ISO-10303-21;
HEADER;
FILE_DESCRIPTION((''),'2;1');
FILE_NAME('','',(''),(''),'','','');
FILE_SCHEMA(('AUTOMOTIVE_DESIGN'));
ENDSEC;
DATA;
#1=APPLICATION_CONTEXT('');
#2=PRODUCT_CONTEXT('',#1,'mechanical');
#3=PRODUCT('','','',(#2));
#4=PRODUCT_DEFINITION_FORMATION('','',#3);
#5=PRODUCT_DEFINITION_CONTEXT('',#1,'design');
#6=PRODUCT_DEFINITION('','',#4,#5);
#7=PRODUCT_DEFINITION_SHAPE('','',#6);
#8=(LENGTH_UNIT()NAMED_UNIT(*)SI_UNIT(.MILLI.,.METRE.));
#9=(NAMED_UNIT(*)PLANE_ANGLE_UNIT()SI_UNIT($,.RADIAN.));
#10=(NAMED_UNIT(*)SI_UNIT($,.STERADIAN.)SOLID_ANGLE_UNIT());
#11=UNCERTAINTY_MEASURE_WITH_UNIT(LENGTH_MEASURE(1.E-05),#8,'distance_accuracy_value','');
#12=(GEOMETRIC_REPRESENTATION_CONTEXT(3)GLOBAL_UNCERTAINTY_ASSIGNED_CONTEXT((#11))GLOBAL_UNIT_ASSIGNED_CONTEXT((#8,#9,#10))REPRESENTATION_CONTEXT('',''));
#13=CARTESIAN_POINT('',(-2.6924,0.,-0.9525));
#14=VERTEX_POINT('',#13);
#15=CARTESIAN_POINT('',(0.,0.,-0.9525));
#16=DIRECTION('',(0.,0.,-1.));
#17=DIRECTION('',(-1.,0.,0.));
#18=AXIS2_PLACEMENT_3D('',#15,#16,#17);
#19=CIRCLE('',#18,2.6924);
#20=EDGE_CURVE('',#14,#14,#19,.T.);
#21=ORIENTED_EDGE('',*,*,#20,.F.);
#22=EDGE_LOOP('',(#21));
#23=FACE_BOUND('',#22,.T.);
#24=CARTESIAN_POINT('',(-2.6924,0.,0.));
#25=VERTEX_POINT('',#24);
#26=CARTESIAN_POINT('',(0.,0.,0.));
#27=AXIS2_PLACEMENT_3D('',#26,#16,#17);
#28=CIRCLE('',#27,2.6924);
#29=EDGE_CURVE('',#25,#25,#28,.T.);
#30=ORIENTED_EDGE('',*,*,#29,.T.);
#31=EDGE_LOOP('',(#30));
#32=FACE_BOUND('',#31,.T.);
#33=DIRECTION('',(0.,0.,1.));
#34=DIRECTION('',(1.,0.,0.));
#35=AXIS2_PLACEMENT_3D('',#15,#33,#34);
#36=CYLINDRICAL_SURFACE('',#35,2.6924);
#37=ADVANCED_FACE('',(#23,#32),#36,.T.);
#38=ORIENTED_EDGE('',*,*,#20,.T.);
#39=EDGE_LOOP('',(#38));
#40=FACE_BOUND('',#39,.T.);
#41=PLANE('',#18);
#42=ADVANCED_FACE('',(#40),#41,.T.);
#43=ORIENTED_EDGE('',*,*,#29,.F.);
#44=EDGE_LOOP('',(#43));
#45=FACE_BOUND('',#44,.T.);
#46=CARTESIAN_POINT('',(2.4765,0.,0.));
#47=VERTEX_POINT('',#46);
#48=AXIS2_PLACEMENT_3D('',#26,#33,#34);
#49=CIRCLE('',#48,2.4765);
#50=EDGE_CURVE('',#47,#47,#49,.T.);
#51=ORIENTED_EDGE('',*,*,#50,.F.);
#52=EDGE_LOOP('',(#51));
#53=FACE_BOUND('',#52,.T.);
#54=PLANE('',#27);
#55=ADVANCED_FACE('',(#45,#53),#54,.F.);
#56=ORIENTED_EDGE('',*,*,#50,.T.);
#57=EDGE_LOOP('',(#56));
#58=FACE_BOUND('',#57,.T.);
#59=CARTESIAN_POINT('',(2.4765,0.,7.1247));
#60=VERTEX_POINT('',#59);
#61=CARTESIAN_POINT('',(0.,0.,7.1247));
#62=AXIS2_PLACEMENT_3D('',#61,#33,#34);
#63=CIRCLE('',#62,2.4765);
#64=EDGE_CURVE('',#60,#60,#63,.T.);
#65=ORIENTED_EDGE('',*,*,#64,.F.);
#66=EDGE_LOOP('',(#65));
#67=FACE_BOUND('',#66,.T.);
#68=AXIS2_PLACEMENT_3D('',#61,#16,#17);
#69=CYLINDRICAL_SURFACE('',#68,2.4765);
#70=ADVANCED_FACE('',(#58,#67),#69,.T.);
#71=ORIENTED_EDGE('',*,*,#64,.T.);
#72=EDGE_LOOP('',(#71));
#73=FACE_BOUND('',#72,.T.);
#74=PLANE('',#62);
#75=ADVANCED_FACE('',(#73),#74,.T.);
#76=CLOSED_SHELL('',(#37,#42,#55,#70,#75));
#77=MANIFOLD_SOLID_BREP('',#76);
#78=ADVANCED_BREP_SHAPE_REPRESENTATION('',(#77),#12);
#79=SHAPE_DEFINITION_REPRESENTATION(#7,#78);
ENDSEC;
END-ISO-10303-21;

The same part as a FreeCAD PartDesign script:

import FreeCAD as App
import Part
import Sketcher
from FreeCAD import Vector
Q = App.Units.Quantity

doc = App.newDocument("Part")
body = doc.addObject("PartDesign::Body", "Body")

# Sketch on XY plane
sketch1 = body.newObject("Sketcher::SketchObject", "Sketch")
sketch1.AttachmentSupport = (doc.getObject("XY_Plane"), [""])
sketch1.MapMode = "FlatFace"
sketch1.addGeometry(Part.Circle(Vector(0, 0, 0), Vector(0, 0, 1), 2.5), False)
sketch1.addConstraint([
    Sketcher.Constraint("Coincident", 0, 3, -1, 1),
    Sketcher.Constraint("Diameter", 0, Q("0.195 in")),
])
pad1 = body.newObject("PartDesign::Pad", "Pad")
pad1.Profile = sketch1
pad1.Length = Q("0.2805 in")

# Sketch on XY plane
sketch2 = body.newObject("Sketcher::SketchObject", "Sketch001")
sketch2.AttachmentSupport = (doc.getObject("XY_Plane"), [""])
sketch2.MapMode = "FlatFace"
sketch2.addGeometry(Part.Circle(Vector(0, 0, 0), Vector(0, 0, 1), 2.7), False)
sketch2.addConstraint([
    Sketcher.Constraint("Coincident", 0, 3, -1, 1),
    Sketcher.Constraint("Diameter", 0, Q("0.212 in")),
])
pad2 = body.newObject("PartDesign::Pad", "Pad001")
pad2.Profile = sketch2
pad2.Length = Q("0.0375 in")
pad2.Reversed = True

doc.recompute()
